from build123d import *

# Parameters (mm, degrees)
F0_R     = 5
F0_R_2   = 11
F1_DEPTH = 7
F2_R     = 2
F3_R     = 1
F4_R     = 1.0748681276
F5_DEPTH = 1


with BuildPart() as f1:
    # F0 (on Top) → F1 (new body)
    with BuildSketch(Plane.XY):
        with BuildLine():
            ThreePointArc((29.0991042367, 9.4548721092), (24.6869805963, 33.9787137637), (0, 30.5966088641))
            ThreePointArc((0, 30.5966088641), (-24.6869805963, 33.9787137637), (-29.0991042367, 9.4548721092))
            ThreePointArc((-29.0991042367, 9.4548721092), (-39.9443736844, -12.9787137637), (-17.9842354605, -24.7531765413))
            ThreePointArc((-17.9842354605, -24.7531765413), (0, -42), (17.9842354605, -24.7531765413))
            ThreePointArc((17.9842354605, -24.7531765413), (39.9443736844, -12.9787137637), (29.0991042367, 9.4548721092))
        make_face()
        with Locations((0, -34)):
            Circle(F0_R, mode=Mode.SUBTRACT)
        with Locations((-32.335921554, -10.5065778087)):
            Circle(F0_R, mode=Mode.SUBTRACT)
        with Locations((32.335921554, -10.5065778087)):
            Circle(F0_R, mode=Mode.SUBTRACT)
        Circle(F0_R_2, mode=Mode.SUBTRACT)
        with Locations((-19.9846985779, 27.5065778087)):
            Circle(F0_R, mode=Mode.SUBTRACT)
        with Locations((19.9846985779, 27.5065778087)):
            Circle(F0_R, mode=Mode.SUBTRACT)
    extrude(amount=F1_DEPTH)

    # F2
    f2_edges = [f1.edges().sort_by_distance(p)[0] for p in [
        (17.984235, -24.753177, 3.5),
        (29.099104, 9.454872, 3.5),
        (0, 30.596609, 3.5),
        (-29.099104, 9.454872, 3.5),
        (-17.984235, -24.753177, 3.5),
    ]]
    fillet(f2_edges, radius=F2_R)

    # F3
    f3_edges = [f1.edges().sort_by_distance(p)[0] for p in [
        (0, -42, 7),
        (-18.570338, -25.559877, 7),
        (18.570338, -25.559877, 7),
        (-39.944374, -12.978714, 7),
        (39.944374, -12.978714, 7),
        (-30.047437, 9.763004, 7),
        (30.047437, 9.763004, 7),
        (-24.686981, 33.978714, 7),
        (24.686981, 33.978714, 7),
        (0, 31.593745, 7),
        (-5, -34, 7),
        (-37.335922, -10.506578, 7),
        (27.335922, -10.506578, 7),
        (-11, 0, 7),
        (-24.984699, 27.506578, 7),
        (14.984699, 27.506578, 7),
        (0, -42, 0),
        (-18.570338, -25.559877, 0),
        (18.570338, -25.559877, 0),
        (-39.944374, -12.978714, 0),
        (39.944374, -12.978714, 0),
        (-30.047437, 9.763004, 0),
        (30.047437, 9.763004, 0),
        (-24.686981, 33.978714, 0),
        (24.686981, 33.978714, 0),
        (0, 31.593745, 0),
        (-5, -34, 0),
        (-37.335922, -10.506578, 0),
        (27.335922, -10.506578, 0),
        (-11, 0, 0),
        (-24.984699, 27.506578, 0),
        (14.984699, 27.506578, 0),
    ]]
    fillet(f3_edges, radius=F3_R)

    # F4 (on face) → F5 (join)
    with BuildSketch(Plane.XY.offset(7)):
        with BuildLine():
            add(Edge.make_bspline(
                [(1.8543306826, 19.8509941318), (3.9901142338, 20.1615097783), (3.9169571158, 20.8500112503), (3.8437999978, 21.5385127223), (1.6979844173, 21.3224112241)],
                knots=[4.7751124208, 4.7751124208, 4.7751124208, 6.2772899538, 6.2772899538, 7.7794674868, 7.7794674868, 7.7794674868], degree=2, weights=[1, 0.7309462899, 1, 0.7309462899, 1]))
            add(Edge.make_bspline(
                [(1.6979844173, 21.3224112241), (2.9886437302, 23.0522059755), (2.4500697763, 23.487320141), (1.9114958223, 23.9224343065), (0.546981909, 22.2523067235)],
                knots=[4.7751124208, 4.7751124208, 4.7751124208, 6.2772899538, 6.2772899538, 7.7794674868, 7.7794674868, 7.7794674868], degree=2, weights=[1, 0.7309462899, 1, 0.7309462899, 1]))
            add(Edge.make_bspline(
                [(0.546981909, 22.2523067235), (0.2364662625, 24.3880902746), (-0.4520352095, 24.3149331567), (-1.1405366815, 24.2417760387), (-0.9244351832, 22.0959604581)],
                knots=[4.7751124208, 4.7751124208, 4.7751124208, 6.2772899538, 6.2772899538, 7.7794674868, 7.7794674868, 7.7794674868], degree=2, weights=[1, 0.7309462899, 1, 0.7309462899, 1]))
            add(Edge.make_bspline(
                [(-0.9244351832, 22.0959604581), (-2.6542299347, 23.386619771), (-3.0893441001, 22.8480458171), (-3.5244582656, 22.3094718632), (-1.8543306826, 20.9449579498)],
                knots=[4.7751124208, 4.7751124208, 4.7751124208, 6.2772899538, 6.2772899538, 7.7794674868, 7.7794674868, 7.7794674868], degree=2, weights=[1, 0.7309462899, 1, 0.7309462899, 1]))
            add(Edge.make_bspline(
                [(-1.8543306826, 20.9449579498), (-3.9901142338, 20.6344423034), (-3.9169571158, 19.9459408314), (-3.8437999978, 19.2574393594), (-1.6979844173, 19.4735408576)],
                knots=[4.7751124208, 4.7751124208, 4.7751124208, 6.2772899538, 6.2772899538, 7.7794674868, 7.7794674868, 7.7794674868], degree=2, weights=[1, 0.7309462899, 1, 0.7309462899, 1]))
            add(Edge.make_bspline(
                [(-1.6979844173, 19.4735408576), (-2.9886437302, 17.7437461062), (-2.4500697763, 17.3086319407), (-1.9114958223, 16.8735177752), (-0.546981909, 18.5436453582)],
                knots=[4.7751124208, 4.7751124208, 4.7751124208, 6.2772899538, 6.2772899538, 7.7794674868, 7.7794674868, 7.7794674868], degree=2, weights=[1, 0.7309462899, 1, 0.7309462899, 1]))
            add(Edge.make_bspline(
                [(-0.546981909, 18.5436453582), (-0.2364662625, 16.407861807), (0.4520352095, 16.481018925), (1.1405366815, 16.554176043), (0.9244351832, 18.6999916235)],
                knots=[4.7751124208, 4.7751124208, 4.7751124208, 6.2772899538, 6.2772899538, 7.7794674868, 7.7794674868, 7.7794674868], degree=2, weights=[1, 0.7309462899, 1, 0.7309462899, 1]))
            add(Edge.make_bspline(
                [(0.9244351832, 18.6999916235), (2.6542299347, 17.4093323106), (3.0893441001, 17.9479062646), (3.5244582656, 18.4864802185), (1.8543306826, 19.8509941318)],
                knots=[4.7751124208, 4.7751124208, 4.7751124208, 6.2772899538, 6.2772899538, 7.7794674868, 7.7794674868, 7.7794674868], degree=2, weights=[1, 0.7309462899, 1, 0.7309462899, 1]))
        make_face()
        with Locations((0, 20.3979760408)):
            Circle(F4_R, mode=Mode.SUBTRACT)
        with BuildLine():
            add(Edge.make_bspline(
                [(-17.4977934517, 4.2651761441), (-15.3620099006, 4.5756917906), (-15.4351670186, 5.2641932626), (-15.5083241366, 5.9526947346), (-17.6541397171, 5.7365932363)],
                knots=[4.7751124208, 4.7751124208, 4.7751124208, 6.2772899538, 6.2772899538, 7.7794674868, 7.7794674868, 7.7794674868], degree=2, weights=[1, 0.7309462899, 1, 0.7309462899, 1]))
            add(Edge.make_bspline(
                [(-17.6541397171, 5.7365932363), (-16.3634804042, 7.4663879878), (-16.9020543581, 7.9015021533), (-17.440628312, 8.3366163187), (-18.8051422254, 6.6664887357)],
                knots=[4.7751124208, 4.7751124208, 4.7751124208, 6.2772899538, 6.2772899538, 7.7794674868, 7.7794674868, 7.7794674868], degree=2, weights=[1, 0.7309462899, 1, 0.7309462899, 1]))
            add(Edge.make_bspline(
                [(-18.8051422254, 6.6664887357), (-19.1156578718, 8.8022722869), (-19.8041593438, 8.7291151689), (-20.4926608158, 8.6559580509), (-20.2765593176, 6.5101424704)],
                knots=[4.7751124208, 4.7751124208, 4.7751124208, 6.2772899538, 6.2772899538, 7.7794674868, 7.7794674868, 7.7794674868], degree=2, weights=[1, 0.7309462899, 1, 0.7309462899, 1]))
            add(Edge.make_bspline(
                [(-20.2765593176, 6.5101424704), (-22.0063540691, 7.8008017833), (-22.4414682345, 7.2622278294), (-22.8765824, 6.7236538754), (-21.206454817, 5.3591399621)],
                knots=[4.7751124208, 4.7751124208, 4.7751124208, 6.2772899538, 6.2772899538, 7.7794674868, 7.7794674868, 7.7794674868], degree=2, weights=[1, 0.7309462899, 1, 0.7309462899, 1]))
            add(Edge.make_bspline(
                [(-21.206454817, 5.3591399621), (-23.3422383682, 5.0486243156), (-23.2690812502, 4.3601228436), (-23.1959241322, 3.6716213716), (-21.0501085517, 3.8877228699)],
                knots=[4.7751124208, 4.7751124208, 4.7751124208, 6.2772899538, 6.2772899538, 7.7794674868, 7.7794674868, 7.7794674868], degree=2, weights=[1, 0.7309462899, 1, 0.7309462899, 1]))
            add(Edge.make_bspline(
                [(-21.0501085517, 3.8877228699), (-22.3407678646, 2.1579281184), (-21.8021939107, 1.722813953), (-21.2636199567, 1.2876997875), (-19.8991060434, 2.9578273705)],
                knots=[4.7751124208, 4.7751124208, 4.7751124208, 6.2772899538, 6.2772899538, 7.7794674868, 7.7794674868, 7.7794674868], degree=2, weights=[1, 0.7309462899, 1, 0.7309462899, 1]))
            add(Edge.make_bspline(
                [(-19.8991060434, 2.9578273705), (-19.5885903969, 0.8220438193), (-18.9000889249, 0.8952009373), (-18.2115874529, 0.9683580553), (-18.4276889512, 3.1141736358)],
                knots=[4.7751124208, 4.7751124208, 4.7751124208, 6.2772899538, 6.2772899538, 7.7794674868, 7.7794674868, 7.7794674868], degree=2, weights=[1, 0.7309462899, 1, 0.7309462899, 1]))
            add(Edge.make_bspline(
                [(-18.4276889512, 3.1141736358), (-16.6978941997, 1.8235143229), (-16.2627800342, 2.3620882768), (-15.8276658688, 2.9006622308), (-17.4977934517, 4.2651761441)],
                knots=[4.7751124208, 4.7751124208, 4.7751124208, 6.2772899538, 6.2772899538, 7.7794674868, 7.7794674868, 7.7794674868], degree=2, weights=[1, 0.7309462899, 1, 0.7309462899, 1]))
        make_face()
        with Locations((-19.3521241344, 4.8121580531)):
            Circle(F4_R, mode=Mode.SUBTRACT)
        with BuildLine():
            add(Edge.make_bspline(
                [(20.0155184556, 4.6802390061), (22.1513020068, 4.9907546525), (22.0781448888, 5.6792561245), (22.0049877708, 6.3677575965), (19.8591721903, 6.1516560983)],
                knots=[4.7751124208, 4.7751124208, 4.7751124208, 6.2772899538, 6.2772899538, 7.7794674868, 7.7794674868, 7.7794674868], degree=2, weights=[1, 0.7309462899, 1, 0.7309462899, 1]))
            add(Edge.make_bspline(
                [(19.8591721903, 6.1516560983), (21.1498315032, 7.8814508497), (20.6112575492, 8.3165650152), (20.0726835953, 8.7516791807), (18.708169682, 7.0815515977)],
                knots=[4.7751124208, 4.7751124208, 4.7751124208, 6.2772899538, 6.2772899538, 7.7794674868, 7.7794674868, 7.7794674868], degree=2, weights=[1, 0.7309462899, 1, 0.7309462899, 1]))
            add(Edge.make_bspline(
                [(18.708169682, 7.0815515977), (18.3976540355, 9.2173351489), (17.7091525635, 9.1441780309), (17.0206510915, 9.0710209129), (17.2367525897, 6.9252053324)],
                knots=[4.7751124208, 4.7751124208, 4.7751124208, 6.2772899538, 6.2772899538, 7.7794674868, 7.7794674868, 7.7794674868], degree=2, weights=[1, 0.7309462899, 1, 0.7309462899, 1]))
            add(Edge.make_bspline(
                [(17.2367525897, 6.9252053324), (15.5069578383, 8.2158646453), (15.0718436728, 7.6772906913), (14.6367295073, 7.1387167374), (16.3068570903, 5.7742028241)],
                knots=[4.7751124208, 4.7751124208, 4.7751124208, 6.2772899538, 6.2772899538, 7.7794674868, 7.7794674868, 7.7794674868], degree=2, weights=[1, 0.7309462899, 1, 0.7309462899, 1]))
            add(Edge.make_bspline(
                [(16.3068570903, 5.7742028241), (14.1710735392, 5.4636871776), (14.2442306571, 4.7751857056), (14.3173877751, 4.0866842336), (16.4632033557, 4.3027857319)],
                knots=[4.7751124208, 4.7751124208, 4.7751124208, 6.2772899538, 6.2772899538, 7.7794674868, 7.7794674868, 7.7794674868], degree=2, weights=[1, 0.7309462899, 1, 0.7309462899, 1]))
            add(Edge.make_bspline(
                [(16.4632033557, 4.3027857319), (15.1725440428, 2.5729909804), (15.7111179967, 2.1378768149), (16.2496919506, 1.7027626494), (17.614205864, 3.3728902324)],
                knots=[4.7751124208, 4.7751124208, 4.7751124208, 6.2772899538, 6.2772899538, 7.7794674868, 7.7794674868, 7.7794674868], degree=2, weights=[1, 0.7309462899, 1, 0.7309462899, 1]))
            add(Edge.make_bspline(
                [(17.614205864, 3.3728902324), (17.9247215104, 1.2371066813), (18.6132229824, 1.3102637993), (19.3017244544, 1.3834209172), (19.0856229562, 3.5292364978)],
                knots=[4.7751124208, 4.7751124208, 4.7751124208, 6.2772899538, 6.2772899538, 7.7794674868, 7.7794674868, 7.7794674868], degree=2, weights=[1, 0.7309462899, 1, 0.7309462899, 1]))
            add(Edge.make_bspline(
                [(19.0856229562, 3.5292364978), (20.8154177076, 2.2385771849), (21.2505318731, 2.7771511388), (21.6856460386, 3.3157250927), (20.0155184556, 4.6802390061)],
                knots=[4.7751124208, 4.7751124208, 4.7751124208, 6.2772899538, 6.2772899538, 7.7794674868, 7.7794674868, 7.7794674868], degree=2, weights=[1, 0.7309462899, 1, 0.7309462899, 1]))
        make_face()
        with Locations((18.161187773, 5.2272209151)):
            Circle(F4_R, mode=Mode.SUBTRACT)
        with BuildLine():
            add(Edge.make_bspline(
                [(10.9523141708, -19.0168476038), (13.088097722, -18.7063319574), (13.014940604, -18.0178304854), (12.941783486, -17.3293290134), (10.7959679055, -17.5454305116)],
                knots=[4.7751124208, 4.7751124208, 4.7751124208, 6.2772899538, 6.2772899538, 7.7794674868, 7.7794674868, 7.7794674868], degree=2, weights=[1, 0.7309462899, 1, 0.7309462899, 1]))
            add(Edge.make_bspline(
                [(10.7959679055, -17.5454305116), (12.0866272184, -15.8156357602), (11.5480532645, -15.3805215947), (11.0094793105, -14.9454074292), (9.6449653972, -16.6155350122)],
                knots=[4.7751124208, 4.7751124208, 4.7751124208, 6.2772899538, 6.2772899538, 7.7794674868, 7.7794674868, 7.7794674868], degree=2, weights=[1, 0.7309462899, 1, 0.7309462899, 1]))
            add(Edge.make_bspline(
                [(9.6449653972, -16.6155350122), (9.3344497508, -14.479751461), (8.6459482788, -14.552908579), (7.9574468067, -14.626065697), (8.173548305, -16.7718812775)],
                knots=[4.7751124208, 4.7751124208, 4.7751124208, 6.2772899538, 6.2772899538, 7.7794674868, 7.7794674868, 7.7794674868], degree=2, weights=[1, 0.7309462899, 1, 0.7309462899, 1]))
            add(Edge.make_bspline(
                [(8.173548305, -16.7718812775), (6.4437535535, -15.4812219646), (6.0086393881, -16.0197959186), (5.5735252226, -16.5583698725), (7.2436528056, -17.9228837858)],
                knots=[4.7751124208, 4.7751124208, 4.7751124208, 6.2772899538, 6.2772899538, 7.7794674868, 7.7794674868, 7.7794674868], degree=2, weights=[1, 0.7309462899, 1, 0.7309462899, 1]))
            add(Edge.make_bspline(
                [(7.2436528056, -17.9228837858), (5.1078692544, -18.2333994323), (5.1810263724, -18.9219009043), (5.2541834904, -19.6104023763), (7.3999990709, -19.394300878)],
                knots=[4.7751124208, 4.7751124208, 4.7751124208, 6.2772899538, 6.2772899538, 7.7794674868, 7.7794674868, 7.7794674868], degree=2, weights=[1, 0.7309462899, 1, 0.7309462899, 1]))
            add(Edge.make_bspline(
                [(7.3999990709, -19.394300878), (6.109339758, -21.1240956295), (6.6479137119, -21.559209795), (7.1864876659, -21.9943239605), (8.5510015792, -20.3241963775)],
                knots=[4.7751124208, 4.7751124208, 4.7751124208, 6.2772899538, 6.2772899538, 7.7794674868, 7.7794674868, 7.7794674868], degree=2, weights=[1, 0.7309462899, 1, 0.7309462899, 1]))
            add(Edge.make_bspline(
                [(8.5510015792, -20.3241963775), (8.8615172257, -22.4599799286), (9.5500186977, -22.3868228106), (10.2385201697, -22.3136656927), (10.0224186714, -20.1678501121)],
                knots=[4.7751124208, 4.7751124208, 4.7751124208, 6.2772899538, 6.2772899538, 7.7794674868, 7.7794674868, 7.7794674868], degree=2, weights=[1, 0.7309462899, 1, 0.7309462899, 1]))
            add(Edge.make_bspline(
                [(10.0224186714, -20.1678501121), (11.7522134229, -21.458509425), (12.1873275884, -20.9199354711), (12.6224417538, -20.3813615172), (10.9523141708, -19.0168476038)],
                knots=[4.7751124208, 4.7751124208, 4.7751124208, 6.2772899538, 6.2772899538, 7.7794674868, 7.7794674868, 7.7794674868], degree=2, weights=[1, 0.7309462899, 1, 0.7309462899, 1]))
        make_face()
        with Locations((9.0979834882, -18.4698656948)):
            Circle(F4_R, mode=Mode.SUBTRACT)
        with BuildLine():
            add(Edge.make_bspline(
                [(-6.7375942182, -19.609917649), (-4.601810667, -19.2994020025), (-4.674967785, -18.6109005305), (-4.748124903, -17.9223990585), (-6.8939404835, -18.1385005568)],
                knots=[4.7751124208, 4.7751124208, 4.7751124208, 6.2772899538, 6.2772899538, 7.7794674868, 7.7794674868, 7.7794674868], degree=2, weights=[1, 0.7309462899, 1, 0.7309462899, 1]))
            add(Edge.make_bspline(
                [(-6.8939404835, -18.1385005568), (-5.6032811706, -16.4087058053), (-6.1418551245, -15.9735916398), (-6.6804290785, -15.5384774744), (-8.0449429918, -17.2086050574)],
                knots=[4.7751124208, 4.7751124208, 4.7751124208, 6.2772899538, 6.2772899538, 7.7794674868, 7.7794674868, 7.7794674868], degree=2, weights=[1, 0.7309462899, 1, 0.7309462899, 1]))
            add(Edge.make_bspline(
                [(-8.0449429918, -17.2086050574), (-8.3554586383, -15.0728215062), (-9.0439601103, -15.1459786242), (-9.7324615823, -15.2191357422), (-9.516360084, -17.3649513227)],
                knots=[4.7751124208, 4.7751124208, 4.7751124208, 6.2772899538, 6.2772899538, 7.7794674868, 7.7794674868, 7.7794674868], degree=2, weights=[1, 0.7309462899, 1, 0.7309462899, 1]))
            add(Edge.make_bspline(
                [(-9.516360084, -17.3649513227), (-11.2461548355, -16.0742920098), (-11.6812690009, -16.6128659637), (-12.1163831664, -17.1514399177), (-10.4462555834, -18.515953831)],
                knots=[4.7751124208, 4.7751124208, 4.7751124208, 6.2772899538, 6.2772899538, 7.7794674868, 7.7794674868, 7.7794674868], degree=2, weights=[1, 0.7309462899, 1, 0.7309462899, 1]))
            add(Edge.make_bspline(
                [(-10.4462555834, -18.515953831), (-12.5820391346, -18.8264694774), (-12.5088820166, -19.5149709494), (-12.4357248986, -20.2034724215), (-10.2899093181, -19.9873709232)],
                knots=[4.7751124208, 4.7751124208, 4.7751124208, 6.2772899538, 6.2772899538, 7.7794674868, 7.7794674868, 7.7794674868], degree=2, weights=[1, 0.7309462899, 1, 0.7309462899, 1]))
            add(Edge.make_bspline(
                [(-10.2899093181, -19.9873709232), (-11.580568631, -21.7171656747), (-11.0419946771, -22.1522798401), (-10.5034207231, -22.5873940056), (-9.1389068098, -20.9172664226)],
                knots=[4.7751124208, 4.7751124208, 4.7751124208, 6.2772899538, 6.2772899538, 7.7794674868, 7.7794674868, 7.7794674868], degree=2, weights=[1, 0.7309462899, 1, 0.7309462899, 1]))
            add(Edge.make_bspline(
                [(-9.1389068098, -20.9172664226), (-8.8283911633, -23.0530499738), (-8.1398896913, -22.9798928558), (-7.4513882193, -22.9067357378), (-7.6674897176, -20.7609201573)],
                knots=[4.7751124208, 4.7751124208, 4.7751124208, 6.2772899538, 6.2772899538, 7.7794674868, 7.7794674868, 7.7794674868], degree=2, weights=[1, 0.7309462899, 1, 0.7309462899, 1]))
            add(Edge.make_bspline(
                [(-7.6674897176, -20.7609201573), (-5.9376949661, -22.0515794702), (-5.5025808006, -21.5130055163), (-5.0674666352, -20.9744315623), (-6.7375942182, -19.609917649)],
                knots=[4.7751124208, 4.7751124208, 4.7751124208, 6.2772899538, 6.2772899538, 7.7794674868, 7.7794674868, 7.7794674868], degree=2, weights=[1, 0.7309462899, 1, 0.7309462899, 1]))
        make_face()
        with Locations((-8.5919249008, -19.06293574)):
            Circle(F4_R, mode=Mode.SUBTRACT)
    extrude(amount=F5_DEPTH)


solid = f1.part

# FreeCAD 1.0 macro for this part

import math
import FreeCAD as App
import Part
import Sketcher

V = App.Vector
Q = App.Units.Quantity


def edges_at(feature, points):
    """Names of the edges that pass closest to the given points."""
    edges = feature.Shape.Edges
    near = lambda p: min(range(len(edges)), key=lambda i: edges[i].distToShape(Part.Vertex(*p))[0])
    return sorted({f"Edge{near(p) + 1}" for p in points})

doc = App.newDocument("Part")
params = doc.addObject("Spreadsheet::Sheet", "Params")
for row, (alias, value) in enumerate([
    ("sketch1_diameter", "10 mm"),
    ("sketch1_diameter2", "22 mm"),
    ("sketch1_radius", "18 mm"),
    ("pad1_length", "7 mm"),
    ("fillet_radius", "2 mm"),
    ("fillet2_radius", "1 mm"),
    ("pad2_length", "1 mm"),
], start=1):
    params.set(f"A{row}", alias)
    params.set(f"B{row}", "=" + value)
    params.setAlias(f"B{row}", alias)

body = doc.addObject("PartDesign::Body", "Body")

sketch1 = doc.addObject("Sketcher::SketchObject", "Sketch")
body.addObject(sketch1)
sketch1.AttachmentSupport = (doc.XY_Plane, [""])
sketch1.MapMode = "FlatFace"
sketch1.addGeometry(Part.ArcOfCircle(Part.Circle(V(14, 19, 0), V(0, 0, 1), 18), math.radians(-34), math.radians(142)), False)
sketch1.addGeometry(Part.ArcOfCircle(Part.Circle(V(-14, 19, 0), V(0, 0, 1), 18), math.radians(38), math.radians(214)), False)
sketch1.addGeometry(Part.ArcOfCircle(Part.Circle(V(-23, -7, 0), V(0, 0, 1), 18), math.radians(110), math.radians(286)), False)
sketch1.addGeometry(Part.ArcOfCircle(Part.Circle(V(0, -24, 0), V(0, 0, 1), 18), math.radians(-178), math.radians(-2)), False)
sketch1.addGeometry(Part.ArcOfCircle(Part.Circle(V(23, -7, 0), V(0, 0, 1), 18), math.radians(-106), math.radians(70)), False)
sketch1.addGeometry(Part.Circle(V(-32, -11, 0), V(0, 0, 1), 5), False)
sketch1.addGeometry(Part.Circle(V(0, -34, 0), V(0, 0, 1), 5), False)
sketch1.addGeometry(Part.Circle(V(32, -11, 0), V(0, 0, 1), 5), False)
sketch1.addGeometry(Part.Circle(V(-20, 28, 0), V(0, 0, 1), 5), False)
sketch1.addGeometry(Part.Circle(V(0, 0, 0), V(0, 0, 1), 11), False)
sketch1.addGeometry(Part.Circle(V(20, 28, 0), V(0, 0, 1), 5), False)
sketch1.addConstraint(Sketcher.Constraint("Coincident", 0, 2, 1, 1))
sketch1.addConstraint(Sketcher.Constraint("Coincident", 1, 2, 2, 1))
sketch1.addConstraint(Sketcher.Constraint("Coincident", 2, 2, 3, 1))
sketch1.addConstraint(Sketcher.Constraint("Coincident", 3, 2, 4, 1))
sketch1.addConstraint(Sketcher.Constraint("Coincident", 4, 2, 0, 1))
sketch1.addConstraint(Sketcher.Constraint("Coincident", 9, 3, -1, 1))
sketch1.addConstraint(Sketcher.Constraint("Equal", 0, 1))
sketch1.addConstraint(Sketcher.Constraint("Equal", 1, 2))
sketch1.addConstraint(Sketcher.Constraint("Equal", 2, 3))
sketch1.addConstraint(Sketcher.Constraint("Equal", 3, 4))
sketch1.addConstraint(Sketcher.Constraint("Equal", 5, 6))
sketch1.addConstraint(Sketcher.Constraint("Equal", 6, 7))
sketch1.addConstraint(Sketcher.Constraint("Equal", 7, 8))
sketch1.addConstraint(Sketcher.Constraint("Equal", 8, 10))
sketch1.addConstraint(Sketcher.Constraint("Symmetric", 0, 3, 1, 3, -2))
sketch1.addConstraint(Sketcher.Constraint("Symmetric", 2, 3, 4, 3, -2))
sketch1.addConstraint(Sketcher.Constraint("Symmetric", 5, 3, 7, 3, -2))
sketch1.addConstraint(Sketcher.Constraint("Symmetric", 8, 3, 10, 3, -2))
sketch1.addConstraint(Sketcher.Constraint("PointOnObject", 3, 3, -2))
sketch1.addConstraint(Sketcher.Constraint("PointOnObject", 6, 3, -2))
sketch1.addConstraint(Sketcher.Constraint("Diameter", 5, Q("10 mm")))
sketch1.addConstraint(Sketcher.Constraint("Diameter", 9, Q("22 mm")))
sketch1.addConstraint(Sketcher.Constraint("Radius", 0, Q("18 mm")))
sketch1.addConstraint(Sketcher.Constraint("DistanceY", 3, 3, -1, 1, Q("24 mm")))
sketch1.addConstraint(Sketcher.Constraint("DistanceY", 6, 3, -1, 1, Q("34 mm")))
sketch1.addConstraint(Sketcher.Constraint("DistanceX", 8, 3, -1, 1, Q("19.984699 mm")))
sketch1.addConstraint(Sketcher.Constraint("DistanceY", 1, 3, 0, 2, Q("11.180201 mm")))
sketch1.addConstraint(Sketcher.Constraint("DistanceY", 2, 2, 5, 3, Q("14.246599 mm")))
sketch1.addConstraint(Sketcher.Constraint("DistanceX", 5, 3, -1, 1, Q("32.335922 mm")))
sketch1.addConstraint(Sketcher.Constraint("DistanceY", -1, 1, 0, 2, Q("30.596609 mm")))
sketch1.addConstraint(Sketcher.Constraint("DistanceX", 2, 3, 1, 3, Q("8.71851 mm")))
sketch1.addConstraint(Sketcher.Constraint("DistanceY", 5, 3, 2, 3, Q("3.09017 mm")))
sketch1.addConstraint(Sketcher.Constraint("DistanceY", 1, 3, 8, 3, Q("8.09017 mm")))
sketch1.setExpression("Constraints[20]", "Params.sketch1_diameter")
sketch1.setExpression("Constraints[21]", "Params.sketch1_diameter2")
sketch1.setExpression("Constraints[22]", "Params.sketch1_radius")
pad1 = doc.addObject("PartDesign::Pad", "Pad")
body.addObject(pad1)
pad1.Profile = sketch1
pad1.setExpression("Length", "Params.pad1_length")
doc.recompute()

fillet = doc.addObject("PartDesign::Fillet", "Fillet")
body.addObject(fillet)
fillet.Base = (pad1, edges_at(pad1, [
    (17.984, -24.753, 3.5),
    (29.099, 9.455, 3.5),
    (0, 30.597, 3.5),
    (-29.099, 9.455, 3.5),
    (-17.984, -24.753, 3.5),
]))
fillet.setExpression("Radius", "Params.fillet_radius")
doc.recompute()

fillet2 = doc.addObject("PartDesign::Fillet", "Fillet001")
body.addObject(fillet2)
fillet2.Base = (fillet, edges_at(fillet, [
    (0, -42, 7),
    (-18.57, -25.56, 7),
    (18.57, -25.56, 7),
    (-39.944, -12.979, 7),
    (39.944, -12.979, 7),
    (-30.047, 9.763, 7),
    (30.047, 9.763, 7),
    (-24.687, 33.979, 7),
    (24.687, 33.979, 7),
    (0, 31.594, 7),
    (-5, -34, 7),
    (-37.336, -10.507, 7),
    (27.336, -10.507, 7),
    (-11, 0, 7),
    (-24.985, 27.507, 7),
    (14.985, 27.507, 7),
    (0, -42, 0),
    (-18.57, -25.56, 0),
    (18.57, -25.56, 0),
    (-39.944, -12.979, 0),
    (39.944, -12.979, 0),
    (-30.047, 9.763, 0),
    (30.047, 9.763, 0),
    (-24.687, 33.979, 0),
    (24.687, 33.979, 0),
    (0, 31.594, 0),
    (-5, -34, 0),
    (-37.336, -10.507, 0),
    (27.336, -10.507, 0),
    (-11, 0, 0),
    (-24.985, 27.507, 0),
    (14.985, 27.507, 0),
]))
fillet2.setExpression("Radius", "Params.fillet2_radius")

sketch2 = doc.addObject("Sketcher::SketchObject", "Sketch001")
body.addObject(sketch2)
sketch2.AttachmentSupport = (doc.XY_Plane, [""])
sketch2.MapMode = "FlatFace"
sketch2.AttachmentOffset = App.Placement(V(0, 0, 7), App.Rotation())
sketch2.addGeometry(Part.BSplineCurve([V(1.854331, 19.850994, 0), V(3.990114, 20.16151, 0), V(3.916957, 20.850011, 0), V(3.8438, 21.538513, 0), V(1.697984, 21.322411, 0)], [3, 2, 3], [4.775112421, 6.277289954, 7.779467487], False, 2, [1, 0.73094629, 1, 0.73094629, 1], False), False)
sketch2.addGeometry(Part.BSplineCurve([V(1.697984, 21.322411, 0), V(2.988644, 23.052206, 0), V(2.45007, 23.48732, 0), V(1.911496, 23.922434, 0), V(0.546982, 22.252307, 0)], [3, 2, 3], [4.775112421, 6.277289954, 7.779467487], False, 2, [1, 0.73094629, 1, 0.73094629, 1], False), False)
sketch2.addGeometry(Part.BSplineCurve([V(0.546982, 22.252307, 0), V(0.236466, 24.38809, 0), V(-0.452035, 24.314933, 0), V(-1.140537, 24.241776, 0), V(-0.924435, 22.09596, 0)], [3, 2, 3], [4.775112421, 6.277289954, 7.779467487], False, 2, [1, 0.73094629, 1, 0.73094629, 1], False), False)
sketch2.addGeometry(Part.BSplineCurve([V(-0.924435, 22.09596, 0), V(-2.65423, 23.38662, 0), V(-3.089344, 22.848046, 0), V(-3.524458, 22.309472, 0), V(-1.854331, 20.944958, 0)], [3, 2, 3], [4.775112421, 6.277289954, 7.779467487], False, 2, [1, 0.73094629, 1, 0.73094629, 1], False), False)
sketch2.addGeometry(Part.BSplineCurve([V(-1.854331, 20.944958, 0), V(-3.990114, 20.634442, 0), V(-3.916957, 19.945941, 0), V(-3.8438, 19.257439, 0), V(-1.697984, 19.473541, 0)], [3, 2, 3], [4.775112421, 6.277289954, 7.779467487], False, 2, [1, 0.73094629, 1, 0.73094629, 1], False), False)
sketch2.addGeometry(Part.BSplineCurve([V(-1.697984, 19.473541, 0), V(-2.988644, 17.743746, 0), V(-2.45007, 17.308632, 0), V(-1.911496, 16.873518, 0), V(-0.546982, 18.543645, 0)], [3, 2, 3], [4.775112421, 6.277289954, 7.779467487], False, 2, [1, 0.73094629, 1, 0.73094629, 1], False), False)
sketch2.addGeometry(Part.BSplineCurve([V(-0.546982, 18.543645, 0), V(-0.236466, 16.407862, 0), V(0.452035, 16.481019, 0), V(1.140537, 16.554176, 0), V(0.924435, 18.699992, 0)], [3, 2, 3], [4.775112421, 6.277289954, 7.779467487], False, 2, [1, 0.73094629, 1, 0.73094629, 1], False), False)
sketch2.addGeometry(Part.BSplineCurve([V(0.924435, 18.699992, 0), V(2.65423, 17.409332, 0), V(3.089344, 17.947906, 0), V(3.524458, 18.48648, 0), V(1.854331, 19.850994, 0)], [3, 2, 3], [4.775112421, 6.277289954, 7.779467487], False, 2, [1, 0.73094629, 1, 0.73094629, 1], False), False)
sketch2.addGeometry(Part.Circle(V(0, 20.397976, 0), V(0, 0, 1), 1.074868), False)
sketch2.addGeometry(Part.BSplineCurve([V(-17.497793, 4.265176, 0), V(-15.36201, 4.575692, 0), V(-15.435167, 5.264193, 0), V(-15.508324, 5.952695, 0), V(-17.65414, 5.736593, 0)], [3, 2, 3], [4.775112421, 6.277289954, 7.779467487], False, 2, [1, 0.73094629, 1, 0.73094629, 1], False), False)
sketch2.addGeometry(Part.BSplineCurve([V(-17.65414, 5.736593, 0), V(-16.36348, 7.466388, 0), V(-16.902054, 7.901502, 0), V(-17.440628, 8.336616, 0), V(-18.805142, 6.666489, 0)], [3, 2, 3], [4.775112421, 6.277289954, 7.779467487], False, 2, [1, 0.73094629, 1, 0.73094629, 1], False), False)
sketch2.addGeometry(Part.BSplineCurve([V(-18.805142, 6.666489, 0), V(-19.115658, 8.802272, 0), V(-19.804159, 8.729115, 0), V(-20.492661, 8.655958, 0), V(-20.276559, 6.510142, 0)], [3, 2, 3], [4.775112421, 6.277289954, 7.779467487], False, 2, [1, 0.73094629, 1, 0.73094629, 1], False), False)
sketch2.addGeometry(Part.BSplineCurve([V(-20.276559, 6.510142, 0), V(-22.006354, 7.800802, 0), V(-22.441468, 7.262228, 0), V(-22.876582, 6.723654, 0), V(-21.206455, 5.35914, 0)], [3, 2, 3], [4.775112421, 6.277289954, 7.779467487], False, 2, [1, 0.73094629, 1, 0.73094629, 1], False), False)
sketch2.addGeometry(Part.BSplineCurve([V(-21.206455, 5.35914, 0), V(-23.342238, 5.048624, 0), V(-23.269081, 4.360123, 0), V(-23.195924, 3.671621, 0), V(-21.050109, 3.887723, 0)], [3, 2, 3], [4.775112421, 6.277289954, 7.779467487], False, 2, [1, 0.73094629, 1, 0.73094629, 1], False), False)
sketch2.addGeometry(Part.BSplineCurve([V(-21.050109, 3.887723, 0), V(-22.340768, 2.157928, 0), V(-21.802194, 1.722814, 0), V(-21.26362, 1.2877, 0), V(-19.899106, 2.957827, 0)], [3, 2, 3], [4.775112421, 6.277289954, 7.779467487], False, 2, [1, 0.73094629, 1, 0.73094629, 1], False), False)
sketch2.addGeometry(Part.BSplineCurve([V(-19.899106, 2.957827, 0), V(-19.58859, 0.822044, 0), V(-18.900089, 0.895201, 0), V(-18.211587, 0.968358, 0), V(-18.427689, 3.114174, 0)], [3, 2, 3], [4.775112421, 6.277289954, 7.779467487], False, 2, [1, 0.73094629, 1, 0.73094629, 1], False), False)
sketch2.addGeometry(Part.BSplineCurve([V(-18.427689, 3.114174, 0), V(-16.697894, 1.823514, 0), V(-16.26278, 2.362088, 0), V(-15.827666, 2.900662, 0), V(-17.497793, 4.265176, 0)], [3, 2, 3], [4.775112421, 6.277289954, 7.779467487], False, 2, [1, 0.73094629, 1, 0.73094629, 1], False), False)
sketch2.addGeometry(Part.Circle(V(-19.352124, 4.812158, 0), V(0, 0, 1), 1.074868), False)
sketch2.addGeometry(Part.BSplineCurve([V(20.015518, 4.680239, 0), V(22.151302, 4.990755, 0), V(22.078145, 5.679256, 0), V(22.004988, 6.367758, 0), V(19.859172, 6.151656, 0)], [3, 2, 3], [4.775112421, 6.277289954, 7.779467487], False, 2, [1, 0.73094629, 1, 0.73094629, 1], False), False)
sketch2.addGeometry(Part.BSplineCurve([V(19.859172, 6.151656, 0), V(21.149832, 7.881451, 0), V(20.611258, 8.316565, 0), V(20.072684, 8.751679, 0), V(18.70817, 7.081552, 0)], [3, 2, 3], [4.775112421, 6.277289954, 7.779467487], False, 2, [1, 0.73094629, 1, 0.73094629, 1], False), False)
sketch2.addGeometry(Part.BSplineCurve([V(18.70817, 7.081552, 0), V(18.397654, 9.217335, 0), V(17.709153, 9.144178, 0), V(17.020651, 9.071021, 0), V(17.236753, 6.925205, 0)], [3, 2, 3], [4.775112421, 6.277289954, 7.779467487], False, 2, [1, 0.73094629, 1, 0.73094629, 1], False), False)
sketch2.addGeometry(Part.BSplineCurve([V(17.236753, 6.925205, 0), V(15.506958, 8.215865, 0), V(15.071844, 7.677291, 0), V(14.63673, 7.138717, 0), V(16.306857, 5.774203, 0)], [3, 2, 3], [4.775112421, 6.277289954, 7.779467487], False, 2, [1, 0.73094629, 1, 0.73094629, 1], False), False)
sketch2.addGeometry(Part.BSplineCurve([V(16.306857, 5.774203, 0), V(14.171074, 5.463687, 0), V(14.244231, 4.775186, 0), V(14.317388, 4.086684, 0), V(16.463203, 4.302786, 0)], [3, 2, 3], [4.775112421, 6.277289954, 7.779467487], False, 2, [1, 0.73094629, 1, 0.73094629, 1], False), False)
sketch2.addGeometry(Part.BSplineCurve([V(16.463203, 4.302786, 0), V(15.172544, 2.572991, 0), V(15.711118, 2.137877, 0), V(16.249692, 1.702763, 0), V(17.614206, 3.37289, 0)], [3, 2, 3], [4.775112421, 6.277289954, 7.779467487], False, 2, [1, 0.73094629, 1, 0.73094629, 1], False), False)
sketch2.addGeometry(Part.BSplineCurve([V(17.614206, 3.37289, 0), V(17.924722, 1.237107, 0), V(18.613223, 1.310264, 0), V(19.301724, 1.383421, 0), V(19.085623, 3.529236, 0)], [3, 2, 3], [4.775112421, 6.277289954, 7.779467487], False, 2, [1, 0.73094629, 1, 0.73094629, 1], False), False)
sketch2.addGeometry(Part.BSplineCurve([V(19.085623, 3.529236, 0), V(20.815418, 2.238577, 0), V(21.250532, 2.777151, 0), V(21.685646, 3.315725, 0), V(20.015518, 4.680239, 0)], [3, 2, 3], [4.775112421, 6.277289954, 7.779467487], False, 2, [1, 0.73094629, 1, 0.73094629, 1], False), False)
sketch2.addGeometry(Part.Circle(V(18.161188, 5.227221, 0), V(0, 0, 1), 1.074868), False)
sketch2.addGeometry(Part.BSplineCurve([V(10.952314, -19.016848, 0), V(13.088098, -18.706332, 0), V(13.014941, -18.01783, 0), V(12.941783, -17.329329, 0), V(10.795968, -17.545431, 0)], [3, 2, 3], [4.775112421, 6.277289954, 7.779467487], False, 2, [1, 0.73094629, 1, 0.73094629, 1], False), False)
sketch2.addGeometry(Part.BSplineCurve([V(10.795968, -17.545431, 0), V(12.086627, -15.815636, 0), V(11.548053, -15.380522, 0), V(11.009479, -14.945407, 0), V(9.644965, -16.615535, 0)], [3, 2, 3], [4.775112421, 6.277289954, 7.779467487], False, 2, [1, 0.73094629, 1, 0.73094629, 1], False), False)
sketch2.addGeometry(Part.BSplineCurve([V(9.644965, -16.615535, 0), V(9.33445, -14.479751, 0), V(8.645948, -14.552909, 0), V(7.957447, -14.626066, 0), V(8.173548, -16.771881, 0)], [3, 2, 3], [4.775112421, 6.277289954, 7.779467487], False, 2, [1, 0.73094629, 1, 0.73094629, 1], False), False)
sketch2.addGeometry(Part.BSplineCurve([V(8.173548, -16.771881, 0), V(6.443754, -15.481222, 0), V(6.008639, -16.019796, 0), V(5.573525, -16.55837, 0), V(7.243653, -17.922884, 0)], [3, 2, 3], [4.775112421, 6.277289954, 7.779467487], False, 2, [1, 0.73094629, 1, 0.73094629, 1], False), False)
sketch2.addGeometry(Part.BSplineCurve([V(7.243653, -17.922884, 0), V(5.107869, -18.233399, 0), V(5.181026, -18.921901, 0), V(5.254183, -19.610402, 0), V(7.399999, -19.394301, 0)], [3, 2, 3], [4.775112421, 6.277289954, 7.779467487], False, 2, [1, 0.73094629, 1, 0.73094629, 1], False), False)
sketch2.addGeometry(Part.BSplineCurve([V(7.399999, -19.394301, 0), V(6.10934, -21.124096, 0), V(6.647914, -21.55921, 0), V(7.186488, -21.994324, 0), V(8.551002, -20.324196, 0)], [3, 2, 3], [4.775112421, 6.277289954, 7.779467487], False, 2, [1, 0.73094629, 1, 0.73094629, 1], False), False)
sketch2.addGeometry(Part.BSplineCurve([V(8.551002, -20.324196, 0), V(8.861517, -22.45998, 0), V(9.550019, -22.386823, 0), V(10.23852, -22.313666, 0), V(10.022419, -20.16785, 0)], [3, 2, 3], [4.775112421, 6.277289954, 7.779467487], False, 2, [1, 0.73094629, 1, 0.73094629, 1], False), False)
sketch2.addGeometry(Part.BSplineCurve([V(10.022419, -20.16785, 0), V(11.752213, -21.458509, 0), V(12.187328, -20.919935, 0), V(12.622442, -20.381362, 0), V(10.952314, -19.016848, 0)], [3, 2, 3], [4.775112421, 6.277289954, 7.779467487], False, 2, [1, 0.73094629, 1, 0.73094629, 1], False), False)
sketch2.addGeometry(Part.Circle(V(9.097983, -18.469866, 0), V(0, 0, 1), 1.074868), False)
sketch2.addGeometry(Part.BSplineCurve([V(-6.737594, -19.609918, 0), V(-4.601811, -19.299402, 0), V(-4.674968, -18.610901, 0), V(-4.748125, -17.922399, 0), V(-6.89394, -18.138501, 0)], [3, 2, 3], [4.775112421, 6.277289954, 7.779467487], False, 2, [1, 0.73094629, 1, 0.73094629, 1], False), False)
sketch2.addGeometry(Part.BSplineCurve([V(-6.89394, -18.138501, 0), V(-5.603281, -16.408706, 0), V(-6.141855, -15.973592, 0), V(-6.680429, -15.538477, 0), V(-8.044943, -17.208605, 0)], [3, 2, 3], [4.775112421, 6.277289954, 7.779467487], False, 2, [1, 0.73094629, 1, 0.73094629, 1], False), False)
sketch2.addGeometry(Part.BSplineCurve([V(-8.044943, -17.208605, 0), V(-8.355459, -15.072822, 0), V(-9.04396, -15.145979, 0), V(-9.732462, -15.219136, 0), V(-9.51636, -17.364951, 0)], [3, 2, 3], [4.775112421, 6.277289954, 7.779467487], False, 2, [1, 0.73094629, 1, 0.73094629, 1], False), False)
sketch2.addGeometry(Part.BSplineCurve([V(-9.51636, -17.364951, 0), V(-11.246155, -16.074292, 0), V(-11.681269, -16.612866, 0), V(-12.116383, -17.15144, 0), V(-10.446256, -18.515954, 0)], [3, 2, 3], [4.775112421, 6.277289954, 7.779467487], False, 2, [1, 0.73094629, 1, 0.73094629, 1], False), False)
sketch2.addGeometry(Part.BSplineCurve([V(-10.446256, -18.515954, 0), V(-12.582039, -18.826469, 0), V(-12.508882, -19.514971, 0), V(-12.435725, -20.203472, 0), V(-10.289909, -19.987371, 0)], [3, 2, 3], [4.775112421, 6.277289954, 7.779467487], False, 2, [1, 0.73094629, 1, 0.73094629, 1], False), False)
sketch2.addGeometry(Part.BSplineCurve([V(-10.289909, -19.987371, 0), V(-11.580569, -21.717166, 0), V(-11.041995, -22.15228, 0), V(-10.503421, -22.587394, 0), V(-9.138907, -20.917266, 0)], [3, 2, 3], [4.775112421, 6.277289954, 7.779467487], False, 2, [1, 0.73094629, 1, 0.73094629, 1], False), False)
sketch2.addGeometry(Part.BSplineCurve([V(-9.138907, -20.917266, 0), V(-8.828391, -23.05305, 0), V(-8.13989, -22.979893, 0), V(-7.451388, -22.906736, 0), V(-7.66749, -20.76092, 0)], [3, 2, 3], [4.775112421, 6.277289954, 7.779467487], False, 2, [1, 0.73094629, 1, 0.73094629, 1], False), False)
sketch2.addGeometry(Part.BSplineCurve([V(-7.66749, -20.76092, 0), V(-5.937695, -22.051579, 0), V(-5.502581, -21.513006, 0), V(-5.067467, -20.974432, 0), V(-6.737594, -19.609918, 0)], [3, 2, 3], [4.775112421, 6.277289954, 7.779467487], False, 2, [1, 0.73094629, 1, 0.73094629, 1], False), False)
sketch2.addGeometry(Part.Circle(V(-8.591925, -19.062936, 0), V(0, 0, 1), 1.074868), False)
sketch2.addConstraint(Sketcher.Constraint("Block", 0))
sketch2.addConstraint(Sketcher.Constraint("Block", 1))
sketch2.addConstraint(Sketcher.Constraint("Block", 2))
sketch2.addConstraint(Sketcher.Constraint("Block", 3))
sketch2.addConstraint(Sketcher.Constraint("Block", 4))
sketch2.addConstraint(Sketcher.Constraint("Block", 5))
sketch2.addConstraint(Sketcher.Constraint("Block", 6))
sketch2.addConstraint(Sketcher.Constraint("Block", 7))
sketch2.addConstraint(Sketcher.Constraint("Block", 9))
sketch2.addConstraint(Sketcher.Constraint("Block", 10))
sketch2.addConstraint(Sketcher.Constraint("Block", 11))
sketch2.addConstraint(Sketcher.Constraint("Block", 12))
sketch2.addConstraint(Sketcher.Constraint("Block", 13))
sketch2.addConstraint(Sketcher.Constraint("Block", 14))
sketch2.addConstraint(Sketcher.Constraint("Block", 15))
sketch2.addConstraint(Sketcher.Constraint("Block", 16))
sketch2.addConstraint(Sketcher.Constraint("Block", 18))
sketch2.addConstraint(Sketcher.Constraint("Block", 19))
sketch2.addConstraint(Sketcher.Constraint("Block", 20))
sketch2.addConstraint(Sketcher.Constraint("Block", 21))
sketch2.addConstraint(Sketcher.Constraint("Block", 22))
sketch2.addConstraint(Sketcher.Constraint("Block", 23))
sketch2.addConstraint(Sketcher.Constraint("Block", 24))
sketch2.addConstraint(Sketcher.Constraint("Block", 25))
sketch2.addConstraint(Sketcher.Constraint("Block", 27))
sketch2.addConstraint(Sketcher.Constraint("Block", 28))
sketch2.addConstraint(Sketcher.Constraint("Block", 29))
sketch2.addConstraint(Sketcher.Constraint("Block", 30))
sketch2.addConstraint(Sketcher.Constraint("Block", 31))
sketch2.addConstraint(Sketcher.Constraint("Block", 32))
sketch2.addConstraint(Sketcher.Constraint("Block", 33))
sketch2.addConstraint(Sketcher.Constraint("Block", 34))
sketch2.addConstraint(Sketcher.Constraint("Block", 36))
sketch2.addConstraint(Sketcher.Constraint("Block", 37))
sketch2.addConstraint(Sketcher.Constraint("Block", 38))
sketch2.addConstraint(Sketcher.Constraint("Block", 39))
sketch2.addConstraint(Sketcher.Constraint("Block", 40))
sketch2.addConstraint(Sketcher.Constraint("Block", 41))
sketch2.addConstraint(Sketcher.Constraint("Block", 42))
sketch2.addConstraint(Sketcher.Constraint("Block", 43))
sketch2.addConstraint(Sketcher.Constraint("Equal", 8, 17))
sketch2.addConstraint(Sketcher.Constraint("Equal", 17, 26))
sketch2.addConstraint(Sketcher.Constraint("Equal", 26, 35))
sketch2.addConstraint(Sketcher.Constraint("Equal", 35, 44))
sketch2.addConstraint(Sketcher.Constraint("PointOnObject", 8, 3, -2))
sketch2.addConstraint(Sketcher.Constraint("Diameter", 8, Q("2.149736 mm")))
sketch2.addConstraint(Sketcher.Constraint("DistanceX", 17, 3, 44, 3, Q("10.760199 mm")))
sketch2.addConstraint(Sketcher.Constraint("DistanceY", -1, 1, 17, 3, Q("4.812158 mm")))
sketch2.addConstraint(Sketcher.Constraint("DistanceY", -1, 1, 26, 3, Q("5.227221 mm")))
sketch2.addConstraint(Sketcher.Constraint("DistanceX", 17, 3, 26, 3, Q("37.513312 mm")))
sketch2.addConstraint(Sketcher.Constraint("DistanceY", 35, 3, 8, 3, Q("38.867842 mm")))
sketch2.addConstraint(Sketcher.Constraint("DistanceX", 44, 3, 35, 3, Q("17.689908 mm")))
sketch2.addConstraint(Sketcher.Constraint("DistanceY", 44, 3, 35, 3, Q("0.59307 mm")))
sketch2.addConstraint(Sketcher.Constraint("DistanceY", -1, 1, 8, 3, Q("20.397976 mm")))
sketch2.addConstraint(Sketcher.Constraint("DistanceX", 17, 3, -1, 1, Q("19.352124 mm")))
pad2 = doc.addObject("PartDesign::Pad", "Pad001")
body.addObject(pad2)
pad2.Profile = sketch2
pad2.setExpression("Length", "Params.pad2_length")

doc.recompute()
